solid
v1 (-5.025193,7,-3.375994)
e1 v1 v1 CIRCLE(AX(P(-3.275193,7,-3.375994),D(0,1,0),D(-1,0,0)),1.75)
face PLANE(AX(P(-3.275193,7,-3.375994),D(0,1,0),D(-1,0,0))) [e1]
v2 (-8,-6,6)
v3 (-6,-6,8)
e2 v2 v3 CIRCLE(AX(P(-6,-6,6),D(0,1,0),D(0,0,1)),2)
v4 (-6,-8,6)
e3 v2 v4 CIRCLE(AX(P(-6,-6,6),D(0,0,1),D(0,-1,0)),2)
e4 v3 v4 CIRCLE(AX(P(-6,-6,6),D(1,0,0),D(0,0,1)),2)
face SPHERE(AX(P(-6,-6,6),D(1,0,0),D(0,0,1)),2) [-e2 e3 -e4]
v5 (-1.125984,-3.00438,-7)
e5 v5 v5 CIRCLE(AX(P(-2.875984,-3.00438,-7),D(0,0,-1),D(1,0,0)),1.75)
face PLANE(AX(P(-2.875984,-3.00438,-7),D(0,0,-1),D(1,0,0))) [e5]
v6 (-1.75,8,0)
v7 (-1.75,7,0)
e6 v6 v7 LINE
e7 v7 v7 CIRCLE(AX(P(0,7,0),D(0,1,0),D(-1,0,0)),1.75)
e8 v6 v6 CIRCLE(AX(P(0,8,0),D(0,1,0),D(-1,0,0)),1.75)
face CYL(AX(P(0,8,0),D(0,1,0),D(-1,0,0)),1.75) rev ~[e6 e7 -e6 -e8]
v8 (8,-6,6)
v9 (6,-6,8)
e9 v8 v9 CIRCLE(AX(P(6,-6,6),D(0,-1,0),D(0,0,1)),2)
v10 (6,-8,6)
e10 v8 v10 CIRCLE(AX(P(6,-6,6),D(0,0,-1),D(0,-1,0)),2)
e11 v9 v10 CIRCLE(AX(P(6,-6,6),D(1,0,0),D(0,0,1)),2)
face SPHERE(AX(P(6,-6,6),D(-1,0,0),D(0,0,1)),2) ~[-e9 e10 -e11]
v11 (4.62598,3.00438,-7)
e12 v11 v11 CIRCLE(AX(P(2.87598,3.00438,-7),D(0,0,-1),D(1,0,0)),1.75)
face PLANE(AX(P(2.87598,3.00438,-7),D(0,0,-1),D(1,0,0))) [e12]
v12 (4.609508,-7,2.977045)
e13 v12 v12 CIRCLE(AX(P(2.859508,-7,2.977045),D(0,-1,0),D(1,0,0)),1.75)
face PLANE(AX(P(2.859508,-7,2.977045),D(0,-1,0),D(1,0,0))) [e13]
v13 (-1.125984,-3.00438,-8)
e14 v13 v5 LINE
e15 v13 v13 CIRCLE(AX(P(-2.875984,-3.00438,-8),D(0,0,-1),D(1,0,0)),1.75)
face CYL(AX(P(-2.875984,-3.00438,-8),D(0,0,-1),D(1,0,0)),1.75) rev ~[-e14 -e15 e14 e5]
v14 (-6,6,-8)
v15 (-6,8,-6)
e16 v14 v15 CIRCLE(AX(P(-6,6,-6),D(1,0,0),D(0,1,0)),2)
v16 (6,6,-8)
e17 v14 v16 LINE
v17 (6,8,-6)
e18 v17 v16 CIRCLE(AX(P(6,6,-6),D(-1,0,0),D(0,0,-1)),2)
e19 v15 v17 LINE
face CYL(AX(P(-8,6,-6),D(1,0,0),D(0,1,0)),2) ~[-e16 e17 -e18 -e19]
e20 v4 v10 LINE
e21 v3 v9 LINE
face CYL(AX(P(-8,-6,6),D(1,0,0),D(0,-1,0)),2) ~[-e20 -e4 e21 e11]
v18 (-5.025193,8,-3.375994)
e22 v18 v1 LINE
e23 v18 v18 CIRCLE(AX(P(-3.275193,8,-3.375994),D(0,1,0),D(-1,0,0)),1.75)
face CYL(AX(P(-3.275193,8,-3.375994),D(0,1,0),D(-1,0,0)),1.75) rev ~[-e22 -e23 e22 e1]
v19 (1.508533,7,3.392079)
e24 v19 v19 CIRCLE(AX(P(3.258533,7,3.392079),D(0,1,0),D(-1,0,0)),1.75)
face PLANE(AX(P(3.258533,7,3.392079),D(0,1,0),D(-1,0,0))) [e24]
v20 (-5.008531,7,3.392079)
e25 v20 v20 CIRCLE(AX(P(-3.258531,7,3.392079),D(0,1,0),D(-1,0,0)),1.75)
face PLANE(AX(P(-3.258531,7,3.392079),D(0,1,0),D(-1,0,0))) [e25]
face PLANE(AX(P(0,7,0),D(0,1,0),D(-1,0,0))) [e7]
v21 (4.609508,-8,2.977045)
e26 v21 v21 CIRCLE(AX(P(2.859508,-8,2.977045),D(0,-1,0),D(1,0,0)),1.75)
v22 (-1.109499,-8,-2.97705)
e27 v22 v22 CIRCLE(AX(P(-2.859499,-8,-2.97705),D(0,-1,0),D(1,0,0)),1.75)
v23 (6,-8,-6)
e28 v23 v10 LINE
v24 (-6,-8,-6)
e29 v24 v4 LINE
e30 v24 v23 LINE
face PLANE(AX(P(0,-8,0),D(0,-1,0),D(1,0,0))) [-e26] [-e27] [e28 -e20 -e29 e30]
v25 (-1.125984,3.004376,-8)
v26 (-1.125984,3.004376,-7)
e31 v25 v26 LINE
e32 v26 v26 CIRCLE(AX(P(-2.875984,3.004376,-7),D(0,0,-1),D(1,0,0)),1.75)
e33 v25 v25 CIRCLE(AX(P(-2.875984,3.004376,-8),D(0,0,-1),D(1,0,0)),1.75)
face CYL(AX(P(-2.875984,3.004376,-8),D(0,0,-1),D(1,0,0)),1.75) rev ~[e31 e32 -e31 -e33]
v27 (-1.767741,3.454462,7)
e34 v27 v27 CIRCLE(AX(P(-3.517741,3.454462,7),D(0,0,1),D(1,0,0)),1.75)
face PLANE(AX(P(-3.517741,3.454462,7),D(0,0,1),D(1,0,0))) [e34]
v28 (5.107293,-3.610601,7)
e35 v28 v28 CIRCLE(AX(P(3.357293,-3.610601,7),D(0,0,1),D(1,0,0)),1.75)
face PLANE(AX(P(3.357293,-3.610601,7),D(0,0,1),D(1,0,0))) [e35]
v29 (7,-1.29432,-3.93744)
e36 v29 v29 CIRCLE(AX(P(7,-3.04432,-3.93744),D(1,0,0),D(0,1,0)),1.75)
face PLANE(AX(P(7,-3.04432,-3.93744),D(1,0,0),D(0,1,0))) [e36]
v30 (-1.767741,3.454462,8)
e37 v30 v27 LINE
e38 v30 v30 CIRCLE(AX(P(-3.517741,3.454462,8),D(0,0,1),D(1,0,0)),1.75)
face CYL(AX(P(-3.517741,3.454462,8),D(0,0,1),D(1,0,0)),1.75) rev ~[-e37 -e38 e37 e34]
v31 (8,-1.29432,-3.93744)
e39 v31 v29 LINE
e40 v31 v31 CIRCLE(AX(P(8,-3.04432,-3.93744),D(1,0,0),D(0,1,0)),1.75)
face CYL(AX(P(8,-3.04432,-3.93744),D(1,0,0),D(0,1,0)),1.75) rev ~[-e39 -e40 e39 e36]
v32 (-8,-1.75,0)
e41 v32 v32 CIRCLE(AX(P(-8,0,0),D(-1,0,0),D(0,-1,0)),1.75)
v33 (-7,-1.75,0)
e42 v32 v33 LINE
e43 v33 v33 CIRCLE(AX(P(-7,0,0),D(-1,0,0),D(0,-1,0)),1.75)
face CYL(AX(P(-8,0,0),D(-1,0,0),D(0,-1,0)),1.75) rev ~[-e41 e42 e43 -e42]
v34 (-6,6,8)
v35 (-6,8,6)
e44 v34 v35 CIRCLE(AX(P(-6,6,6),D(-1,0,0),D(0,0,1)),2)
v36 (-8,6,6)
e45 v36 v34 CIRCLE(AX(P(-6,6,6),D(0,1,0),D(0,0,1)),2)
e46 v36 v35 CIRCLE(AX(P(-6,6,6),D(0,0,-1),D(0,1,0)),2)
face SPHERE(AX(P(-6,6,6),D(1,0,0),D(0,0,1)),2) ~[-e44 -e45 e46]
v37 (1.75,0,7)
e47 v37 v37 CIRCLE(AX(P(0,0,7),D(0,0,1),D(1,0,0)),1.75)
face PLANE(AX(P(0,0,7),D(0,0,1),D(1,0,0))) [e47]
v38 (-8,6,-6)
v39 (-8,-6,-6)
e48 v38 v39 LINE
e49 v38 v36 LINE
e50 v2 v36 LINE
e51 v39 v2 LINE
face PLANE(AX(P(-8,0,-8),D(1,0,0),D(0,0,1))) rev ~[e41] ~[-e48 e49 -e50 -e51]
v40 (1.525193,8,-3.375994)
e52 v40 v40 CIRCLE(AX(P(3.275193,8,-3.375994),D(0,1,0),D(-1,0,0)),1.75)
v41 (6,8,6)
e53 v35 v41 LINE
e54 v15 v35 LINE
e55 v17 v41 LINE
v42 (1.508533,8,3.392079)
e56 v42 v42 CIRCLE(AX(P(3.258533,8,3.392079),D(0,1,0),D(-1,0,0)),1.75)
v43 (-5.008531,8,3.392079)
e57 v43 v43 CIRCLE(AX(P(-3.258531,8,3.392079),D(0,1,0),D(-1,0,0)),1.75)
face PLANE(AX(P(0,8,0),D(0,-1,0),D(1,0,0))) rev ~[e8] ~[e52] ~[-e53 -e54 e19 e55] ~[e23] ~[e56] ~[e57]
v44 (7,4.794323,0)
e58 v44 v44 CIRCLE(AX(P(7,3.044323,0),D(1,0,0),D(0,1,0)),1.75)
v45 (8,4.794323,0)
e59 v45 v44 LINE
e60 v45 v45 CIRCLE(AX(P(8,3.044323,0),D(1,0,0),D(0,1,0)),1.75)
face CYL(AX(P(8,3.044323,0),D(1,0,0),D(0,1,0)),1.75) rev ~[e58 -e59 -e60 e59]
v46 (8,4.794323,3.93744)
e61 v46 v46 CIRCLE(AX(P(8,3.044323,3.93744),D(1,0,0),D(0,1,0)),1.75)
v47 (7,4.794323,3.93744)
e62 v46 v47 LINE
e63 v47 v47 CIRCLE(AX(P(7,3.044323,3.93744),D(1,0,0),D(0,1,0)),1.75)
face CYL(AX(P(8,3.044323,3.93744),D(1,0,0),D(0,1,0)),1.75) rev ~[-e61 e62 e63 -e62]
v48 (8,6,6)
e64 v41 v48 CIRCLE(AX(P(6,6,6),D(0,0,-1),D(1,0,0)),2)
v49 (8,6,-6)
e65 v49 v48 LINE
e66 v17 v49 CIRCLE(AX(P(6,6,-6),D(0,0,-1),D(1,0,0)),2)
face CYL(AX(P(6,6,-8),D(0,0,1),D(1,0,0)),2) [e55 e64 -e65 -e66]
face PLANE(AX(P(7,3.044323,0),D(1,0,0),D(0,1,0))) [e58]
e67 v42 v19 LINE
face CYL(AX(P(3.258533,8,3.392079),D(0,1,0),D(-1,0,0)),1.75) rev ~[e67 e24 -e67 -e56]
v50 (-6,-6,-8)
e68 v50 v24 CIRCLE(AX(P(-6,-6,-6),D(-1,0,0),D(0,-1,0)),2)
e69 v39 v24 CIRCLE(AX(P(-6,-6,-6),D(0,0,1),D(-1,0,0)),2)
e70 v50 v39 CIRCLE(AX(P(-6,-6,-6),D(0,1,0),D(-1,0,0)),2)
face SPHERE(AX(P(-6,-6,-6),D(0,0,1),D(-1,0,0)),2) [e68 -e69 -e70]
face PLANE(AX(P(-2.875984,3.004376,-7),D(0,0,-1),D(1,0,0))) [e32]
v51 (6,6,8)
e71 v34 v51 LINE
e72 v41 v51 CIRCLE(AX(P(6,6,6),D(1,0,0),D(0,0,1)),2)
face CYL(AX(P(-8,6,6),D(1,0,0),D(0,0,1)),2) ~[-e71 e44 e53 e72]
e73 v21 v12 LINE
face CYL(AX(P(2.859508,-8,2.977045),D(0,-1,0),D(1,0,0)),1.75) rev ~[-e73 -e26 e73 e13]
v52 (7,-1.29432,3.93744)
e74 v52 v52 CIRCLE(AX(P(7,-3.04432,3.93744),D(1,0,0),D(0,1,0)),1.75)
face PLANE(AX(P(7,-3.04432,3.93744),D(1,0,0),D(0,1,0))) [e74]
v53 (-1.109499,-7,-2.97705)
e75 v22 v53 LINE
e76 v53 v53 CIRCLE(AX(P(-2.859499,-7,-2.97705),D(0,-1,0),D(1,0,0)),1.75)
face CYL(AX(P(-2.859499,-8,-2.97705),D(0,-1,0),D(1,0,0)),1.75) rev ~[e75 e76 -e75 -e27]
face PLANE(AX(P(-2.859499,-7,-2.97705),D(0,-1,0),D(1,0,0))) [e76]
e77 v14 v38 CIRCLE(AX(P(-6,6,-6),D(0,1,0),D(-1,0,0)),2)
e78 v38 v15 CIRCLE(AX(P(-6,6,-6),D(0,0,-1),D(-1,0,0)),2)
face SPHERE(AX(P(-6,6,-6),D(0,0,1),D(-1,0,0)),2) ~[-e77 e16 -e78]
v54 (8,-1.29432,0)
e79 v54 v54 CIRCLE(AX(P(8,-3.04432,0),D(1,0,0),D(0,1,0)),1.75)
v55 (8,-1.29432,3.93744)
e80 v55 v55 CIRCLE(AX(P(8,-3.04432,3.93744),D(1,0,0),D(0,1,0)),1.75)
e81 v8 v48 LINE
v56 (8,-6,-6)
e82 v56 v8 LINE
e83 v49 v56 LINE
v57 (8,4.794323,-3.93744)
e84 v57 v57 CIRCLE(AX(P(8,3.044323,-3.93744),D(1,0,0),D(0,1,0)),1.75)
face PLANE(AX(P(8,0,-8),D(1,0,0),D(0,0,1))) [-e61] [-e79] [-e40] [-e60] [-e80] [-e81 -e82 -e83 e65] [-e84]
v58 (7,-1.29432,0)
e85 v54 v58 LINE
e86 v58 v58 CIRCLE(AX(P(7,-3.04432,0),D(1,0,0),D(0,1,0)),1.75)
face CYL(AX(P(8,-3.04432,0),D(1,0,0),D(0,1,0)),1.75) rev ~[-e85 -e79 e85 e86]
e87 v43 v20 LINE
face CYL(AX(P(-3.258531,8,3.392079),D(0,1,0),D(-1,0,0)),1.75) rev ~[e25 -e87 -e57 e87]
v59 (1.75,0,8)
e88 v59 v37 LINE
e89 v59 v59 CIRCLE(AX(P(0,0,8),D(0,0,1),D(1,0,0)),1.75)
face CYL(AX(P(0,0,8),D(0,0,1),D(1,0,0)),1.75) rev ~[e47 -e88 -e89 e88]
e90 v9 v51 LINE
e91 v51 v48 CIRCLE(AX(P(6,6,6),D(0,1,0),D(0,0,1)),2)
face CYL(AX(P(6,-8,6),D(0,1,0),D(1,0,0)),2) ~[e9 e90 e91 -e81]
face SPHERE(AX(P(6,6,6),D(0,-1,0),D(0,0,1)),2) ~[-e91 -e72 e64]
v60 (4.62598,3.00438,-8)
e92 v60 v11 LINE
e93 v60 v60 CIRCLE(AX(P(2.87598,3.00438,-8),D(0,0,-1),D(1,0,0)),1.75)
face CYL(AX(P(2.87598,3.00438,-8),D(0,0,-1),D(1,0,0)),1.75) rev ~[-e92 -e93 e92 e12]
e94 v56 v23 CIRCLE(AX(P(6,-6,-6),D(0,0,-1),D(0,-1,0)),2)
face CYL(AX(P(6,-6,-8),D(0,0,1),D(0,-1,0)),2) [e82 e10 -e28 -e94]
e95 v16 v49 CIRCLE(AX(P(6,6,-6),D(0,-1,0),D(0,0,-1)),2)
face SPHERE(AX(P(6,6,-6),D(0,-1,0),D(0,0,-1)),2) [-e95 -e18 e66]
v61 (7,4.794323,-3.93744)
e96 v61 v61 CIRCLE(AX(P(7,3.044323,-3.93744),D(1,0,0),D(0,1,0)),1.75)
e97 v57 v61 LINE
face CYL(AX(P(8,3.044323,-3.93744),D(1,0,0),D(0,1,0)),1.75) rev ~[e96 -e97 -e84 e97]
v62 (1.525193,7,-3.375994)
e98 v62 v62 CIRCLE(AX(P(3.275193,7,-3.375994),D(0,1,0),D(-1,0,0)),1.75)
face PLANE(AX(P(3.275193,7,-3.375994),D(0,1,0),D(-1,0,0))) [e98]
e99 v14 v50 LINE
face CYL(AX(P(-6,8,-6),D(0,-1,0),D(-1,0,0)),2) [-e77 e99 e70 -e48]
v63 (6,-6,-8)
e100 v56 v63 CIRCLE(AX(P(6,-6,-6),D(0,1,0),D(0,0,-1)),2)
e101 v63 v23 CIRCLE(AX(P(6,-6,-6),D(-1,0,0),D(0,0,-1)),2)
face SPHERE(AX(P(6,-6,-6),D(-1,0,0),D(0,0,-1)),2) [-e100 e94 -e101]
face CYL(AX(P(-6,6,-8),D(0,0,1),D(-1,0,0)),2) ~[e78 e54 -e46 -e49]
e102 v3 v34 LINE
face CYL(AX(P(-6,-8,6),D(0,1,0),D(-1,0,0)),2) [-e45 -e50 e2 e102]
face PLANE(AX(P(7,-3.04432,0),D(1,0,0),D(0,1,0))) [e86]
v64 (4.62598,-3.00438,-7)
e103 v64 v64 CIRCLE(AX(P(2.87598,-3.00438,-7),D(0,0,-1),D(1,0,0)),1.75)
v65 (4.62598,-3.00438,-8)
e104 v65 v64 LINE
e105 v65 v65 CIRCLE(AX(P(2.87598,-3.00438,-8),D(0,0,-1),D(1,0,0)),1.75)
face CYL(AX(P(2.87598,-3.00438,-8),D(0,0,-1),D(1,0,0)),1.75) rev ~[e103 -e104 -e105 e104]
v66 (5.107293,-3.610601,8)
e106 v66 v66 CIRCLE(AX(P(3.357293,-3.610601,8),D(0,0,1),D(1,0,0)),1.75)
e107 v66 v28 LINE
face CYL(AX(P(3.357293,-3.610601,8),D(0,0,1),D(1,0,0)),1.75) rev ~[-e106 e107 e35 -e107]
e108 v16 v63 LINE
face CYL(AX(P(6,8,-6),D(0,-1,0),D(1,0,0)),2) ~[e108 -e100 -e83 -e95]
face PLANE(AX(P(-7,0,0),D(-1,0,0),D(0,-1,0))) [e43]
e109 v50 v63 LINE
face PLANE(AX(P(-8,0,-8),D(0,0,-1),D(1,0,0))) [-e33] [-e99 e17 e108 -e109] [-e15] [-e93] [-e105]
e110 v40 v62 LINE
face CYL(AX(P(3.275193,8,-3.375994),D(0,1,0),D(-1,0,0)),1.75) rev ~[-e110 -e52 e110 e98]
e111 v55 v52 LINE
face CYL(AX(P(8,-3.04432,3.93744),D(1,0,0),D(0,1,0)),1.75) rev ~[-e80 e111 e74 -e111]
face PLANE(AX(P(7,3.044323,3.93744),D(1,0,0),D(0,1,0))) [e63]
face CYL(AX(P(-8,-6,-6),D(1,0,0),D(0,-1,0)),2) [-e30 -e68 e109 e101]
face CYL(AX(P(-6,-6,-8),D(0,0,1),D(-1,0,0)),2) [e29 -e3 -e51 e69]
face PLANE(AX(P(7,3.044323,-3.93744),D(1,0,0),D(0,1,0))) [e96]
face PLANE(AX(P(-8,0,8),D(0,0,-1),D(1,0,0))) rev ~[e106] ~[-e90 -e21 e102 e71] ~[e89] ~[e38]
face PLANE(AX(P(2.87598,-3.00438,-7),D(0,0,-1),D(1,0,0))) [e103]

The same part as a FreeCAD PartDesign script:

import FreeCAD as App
import Part
import Sketcher

V = App.Vector


def add_polygon(sketch, points):
    """Adds a closed chain of lines whose ends are joined by coincident constraints."""
    first, n = sketch.GeometryCount, len(points)
    for a, b in zip(points, points[1:] + points[:1]):
        sketch.addGeometry(Part.LineSegment(App.Vector(*a, 0), App.Vector(*b, 0)), False)
    for i in range(n):
        sketch.addConstraint(Sketcher.Constraint("Coincident", first + i, 2, first + (i + 1) % n, 1))

doc = App.newDocument("Part")
body = doc.addObject("PartDesign::Body", "Body")

# Sketch on XZ plane
sketch1 = body.newObject("Sketcher::SketchObject", "Sketch")
sketch1.AttachmentSupport = (doc.getObject("XZ_Plane"), [""])
sketch1.MapMode = "FlatFace"
add_polygon(sketch1, [(-8, 8), (-8, -8), (8, -8), (8, 8)])  # lines 0-3
sketch1.addConstraint([
    Sketcher.Constraint("Vertical", 0),
    Sketcher.Constraint("Horizontal", 1),
    Sketcher.Constraint("Vertical", 2),
    Sketcher.Constraint("Horizontal", 3),
    Sketcher.Constraint("Symmetric", 0, 2, 2, 2, -1, 1),
    Sketcher.Constraint("Equal", 3, 0),
    Sketcher.Constraint("DistanceX", 1, 1, 1, 2, 16.0),
])
pad1 = body.newObject("PartDesign::Pad", "Pad")
pad1.Profile = sketch1
pad1.Length = 16
pad1.Midplane = True
doc.recompute()

fillet = body.newObject("PartDesign::Fillet", "Fillet")
fillet.Base = (pad1, ["Edge1"])
fillet.UseAllEdges = True
fillet.Radius = 2

# Sketch on XZ plane
sketch2 = body.newObject("Sketcher::SketchObject", "Sketch001")
sketch2.AttachmentSupport = (doc.getObject("XZ_Plane"), [""])
sketch2.MapMode = "FlatFace"
sketch2.AttachmentOffset = App.Placement(V(0, 0, 8), App.Rotation())
sketch2.addGeometry([
    Part.Circle(V(2.859508, 2.977045, 0), V(0, 0, 1), 1.75),
    Part.Circle(V(-2.859499, -2.97705, 0), V(0, 0, 1), 1.75),
], False)
sketch2.addConstraint([
    Sketcher.Constraint("Equal", 0, 1),
    Sketcher.Constraint("Diameter", 0, 3.5),
    Sketcher.Constraint("DistanceX", 1, 3, -1, 1, 2.859499),
    Sketcher.Constraint("DistanceY", 1, 3, -1, 1, 2.97705),
    Sketcher.Constraint("DistanceX", -1, 1, 0, 3, 2.859508),
    Sketcher.Constraint("DistanceY", -1, 1, 0, 3, 2.977045),
])
pocket1 = body.newObject("PartDesign::Pocket", "Pocket")
pocket1.Profile = sketch2
pocket1.Length = 1

# Sketch on XY plane
sketch3 = body.newObject("Sketcher::SketchObject", "Sketch002")
sketch3.AttachmentSupport = (doc.getObject("XY_Plane"), [""])
sketch3.MapMode = "FlatFace"
sketch3.AttachmentOffset = App.Placement(V(0, 0, 8), App.Rotation())
sketch3.addGeometry([
    Part.Circle(V(0, 0, 0), V(0, 0, 1), 1.75),
    Part.Circle(V(-3.517741, 3.454462, 0), V(0, 0, 1), 1.75),
    Part.Circle(V(3.357293, -3.610601, 0), V(0, 0, 1), 1.75),
], False)
sketch3.addConstraint([
    Sketcher.Constraint("Coincident", 0, 3, -1, 1),
    Sketcher.Constraint("Equal", 0, 1),
    Sketcher.Constraint("Equal", 1, 2),
    Sketcher.Constraint("Diameter", 0, 3.5),
    Sketcher.Constraint("DistanceY", 2, 3, -1, 1, 3.610601),
    Sketcher.Constraint("DistanceX", 1, 3, -1, 1, 3.517741),
    Sketcher.Constraint("DistanceY", -1, 1, 1, 3, 3.454462),
    Sketcher.Constraint("DistanceX", -1, 1, 2, 3, 3.357293),
])
pocket2 = body.newObject("PartDesign::Pocket", "Pocket001")
pocket2.Profile = sketch3
pocket2.Length = 1

# Sketch on YZ plane
sketch4 = body.newObject("Sketcher::SketchObject", "Sketch003")
sketch4.AttachmentSupport = (doc.getObject("YZ_Plane"), [""])
sketch4.MapMode = "FlatFace"
sketch4.AttachmentOffset = App.Placement(V(0, 0, 8), App.Rotation())
sketch4.addGeometry([
    Part.Circle(V(3.044323, 0, 0), V(0, 0, 1), 1.75),  # 0
    Part.Circle(V(-3.04432, 0, 0), V(0, 0, 1), 1.75),  # 1
    Part.Circle(V(-3.04432, 3.93744, 0), V(0, 0, 1), 1.75),  # 2
    Part.Circle(V(3.044323, 3.93744, 0), V(0, 0, 1), 1.75),  # 3
    Part.Circle(V(-3.04432, -3.93744, 0), V(0, 0, 1), 1.75),  # 4
    Part.Circle(V(3.044323, -3.93744, 0), V(0, 0, 1), 1.75),  # 5
], False)
sketch4.addConstraint([
    Sketcher.Constraint("Equal", 0, 1),
    Sketcher.Constraint("Equal", 1, 2),
    Sketcher.Constraint("Equal", 2, 3),
    Sketcher.Constraint("Equal", 3, 4),
    Sketcher.Constraint("Equal", 4, 5),
    Sketcher.Constraint("Symmetric", 0, 3, 1, 3, -1, 1),
    Sketcher.Constraint("Symmetric", 3, 3, 4, 3, -1, 1),
    Sketcher.Constraint("Symmetric", 2, 3, 5, 3, -1, 1),
    Sketcher.Constraint("Symmetric", 2, 3, 3, 3, -2),
    Sketcher.Constraint("PointOnObject", 0, 3, -1),
    Sketcher.Constraint("Vertical", 1, 3, 2, 3),
    Sketcher.Constraint("Diameter", 0, 3.5),
    Sketcher.Constraint("DistanceX", 1, 3, -1, 1, 3.04432),
    Sketcher.Constraint("DistanceY", -1, 1, 2, 3, 3.93744),
])
pocket3 = body.newObject("PartDesign::Pocket", "Pocket002")
pocket3.Profile = sketch4
pocket3.Length = 1

# Sketch on XZ plane
sketch5 = body.newObject("Sketcher::SketchObject", "Sketch004")
sketch5.AttachmentSupport = (doc.getObject("XZ_Plane"), [""])
sketch5.MapMode = "FlatFace"
sketch5.AttachmentOffset = App.Placement(V(0, 0, -8), App.Rotation())
sketch5.addGeometry([
    Part.Circle(V(0, 0, 0), V(0, 0, 1), 1.75),  # 0
    Part.Circle(V(3.258533, 3.392079, 0), V(0, 0, 1), 1.75),  # 1
    Part.Circle(V(-3.258531, 3.392079, 0), V(0, 0, 1), 1.75),  # 2
    Part.Circle(V(3.275193, -3.375994, 0), V(0, 0, 1), 1.75),  # 3
    Part.Circle(V(-3.275193, -3.375994, 0), V(0, 0, 1), 1.75),  # 4
], False)
sketch5.addConstraint([
    Sketcher.Constraint("Coincident", 0, 3, -1, 1),
    Sketcher.Constraint("Equal", 0, 1),
    Sketcher.Constraint("Equal", 1, 2),
    Sketcher.Constraint("Equal", 2, 3),
    Sketcher.Constraint("Equal", 3, 4),
    Sketcher.Constraint("Symmetric", 1, 3, 2, 3, -2),
    Sketcher.Constraint("Symmetric", 3, 3, 4, 3, -2),
    Sketcher.Constraint("Diameter", 0, 3.5),
    Sketcher.Constraint("DistanceY", -1, 1, 1, 3, 3.392079),
    Sketcher.Constraint("DistanceX", 2, 3, -1, 1, 3.258531),
    Sketcher.Constraint("DistanceX", 1, 3, 3, 3, 0.01666),
    Sketcher.Constraint("DistanceY", 3, 3, -1, 1, 3.375994),
])
pocket4 = body.newObject("PartDesign::Pocket", "Pocket003")
pocket4.Profile = sketch5
pocket4.Length = 1
pocket4.Reversed = True

# Sketch on XY plane
sketch6 = body.newObject("Sketcher::SketchObject", "Sketch005")
sketch6.AttachmentSupport = (doc.getObject("XY_Plane"), [""])
sketch6.MapMode = "FlatFace"
sketch6.AttachmentOffset = App.Placement(V(0, 0, -8), App.Rotation())
sketch6.addGeometry([
    Part.Circle(V(2.87598, 3.00438, 0), V(0, 0, 1), 1.75),
    Part.Circle(V(-2.875984, 3.004376, 0), V(0, 0, 1), 1.75),
    Part.Circle(V(2.87598, -3.00438, 0), V(0, 0, 1), 1.75),
    Part.Circle(V(-2.875984, -3.00438, 0), V(0, 0, 1), 1.75),
], False)
sketch6.addConstraint([
    Sketcher.Constraint("Equal", 0, 1),
    Sketcher.Constraint("Equal", 1, 2),
    Sketcher.Constraint("Equal", 2, 3),
    Sketcher.Constraint("Symmetric", 1, 3, 2, 3, -1, 1),
    Sketcher.Constraint("Symmetric", 0, 3, 3, 3, -1, 1),
    Sketcher.Constraint("Symmetric", 0, 3, 1, 3, -2),
    Sketcher.Constraint("Diameter", 0, 3.5),
    Sketcher.Constraint("DistanceX", -1, 1, 0, 3, 2.87598),
    Sketcher.Constraint("DistanceY", -1, 1, 0, 3, 3.00438),
])
pocket5 = body.newObject("PartDesign::Pocket", "Pocket004")
pocket5.Profile = sketch6
pocket5.Length = 1
pocket5.Reversed = True

# Sketch on YZ plane
sketch7 = body.newObject("Sketcher::SketchObject", "Sketch006")
sketch7.AttachmentSupport = (doc.getObject("YZ_Plane"), [""])
sketch7.MapMode = "FlatFace"
sketch7.AttachmentOffset = App.Placement(V(0, 0, -8), App.Rotation())
sketch7.addGeometry(Part.Circle(V(0, 0, 0), V(0, 0, 1), 1.75), False)
sketch7.addConstraint([
    Sketcher.Constraint("Coincident", 0, 3, -1, 1),
    Sketcher.Constraint("Diameter", 0, 3.5),
])
pocket6 = body.newObject("PartDesign::Pocket", "Pocket005")
pocket6.Profile = sketch7
pocket6.Length = 1
pocket6.Reversed = True

doc.recompute()
